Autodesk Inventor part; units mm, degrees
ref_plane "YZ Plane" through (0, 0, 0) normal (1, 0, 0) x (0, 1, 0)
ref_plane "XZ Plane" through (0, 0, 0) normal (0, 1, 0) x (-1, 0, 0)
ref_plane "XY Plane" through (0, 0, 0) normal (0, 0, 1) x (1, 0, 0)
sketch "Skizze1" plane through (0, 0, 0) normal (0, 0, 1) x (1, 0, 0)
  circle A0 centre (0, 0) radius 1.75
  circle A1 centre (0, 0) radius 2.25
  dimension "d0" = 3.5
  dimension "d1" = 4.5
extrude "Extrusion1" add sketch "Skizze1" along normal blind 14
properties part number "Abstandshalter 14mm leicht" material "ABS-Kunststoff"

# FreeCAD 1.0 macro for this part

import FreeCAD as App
import Part
import Sketcher

doc = App.newDocument("Part")
params = doc.addObject("Spreadsheet::Sheet", "Params")
for row, (alias, value) in enumerate([
    ("sketch1_diameter", "4.5 mm"),
    ("sketch1_diameter2", "3.5 mm"),
    ("pad1_length", "14 mm"),
], start=1):
    params.set(f"A{row}", alias)
    params.set(f"B{row}", "=" + value)
    params.setAlias(f"B{row}", alias)

body = doc.addObject("PartDesign::Body", "Body")

# Sketch on XY plane
sketch1 = body.newObject("Sketcher::SketchObject", "Sketch")
sketch1.AttachmentSupport = (doc.getObject("XY_Plane"), [""])
sketch1.MapMode = "FlatFace"
sketch1.addGeometry([
    Part.Circle(App.Vector(0, 0, 0), App.Vector(0, 0, 1), 2.2),
    Part.Circle(App.Vector(0, 0, 0), App.Vector(0, 0, 1), 1.8),
], False)
sketch1.addConstraint([
    Sketcher.Constraint("Coincident", 0, 3, -1, 1),
    Sketcher.Constraint("Coincident", 1, 3, -1, 1),
    Sketcher.Constraint("Diameter", 0, 4.5),
    Sketcher.Constraint("Diameter", 1, 3.5),
])
sketch1.setExpression("Constraints[2]", "Params.sketch1_diameter")
sketch1.setExpression("Constraints[3]", "Params.sketch1_diameter2")
pad1 = body.newObject("PartDesign::Pad", "Pad")
pad1.Profile = sketch1
pad1.setExpression("Length", "Params.pad1_length")

doc.recompute()
